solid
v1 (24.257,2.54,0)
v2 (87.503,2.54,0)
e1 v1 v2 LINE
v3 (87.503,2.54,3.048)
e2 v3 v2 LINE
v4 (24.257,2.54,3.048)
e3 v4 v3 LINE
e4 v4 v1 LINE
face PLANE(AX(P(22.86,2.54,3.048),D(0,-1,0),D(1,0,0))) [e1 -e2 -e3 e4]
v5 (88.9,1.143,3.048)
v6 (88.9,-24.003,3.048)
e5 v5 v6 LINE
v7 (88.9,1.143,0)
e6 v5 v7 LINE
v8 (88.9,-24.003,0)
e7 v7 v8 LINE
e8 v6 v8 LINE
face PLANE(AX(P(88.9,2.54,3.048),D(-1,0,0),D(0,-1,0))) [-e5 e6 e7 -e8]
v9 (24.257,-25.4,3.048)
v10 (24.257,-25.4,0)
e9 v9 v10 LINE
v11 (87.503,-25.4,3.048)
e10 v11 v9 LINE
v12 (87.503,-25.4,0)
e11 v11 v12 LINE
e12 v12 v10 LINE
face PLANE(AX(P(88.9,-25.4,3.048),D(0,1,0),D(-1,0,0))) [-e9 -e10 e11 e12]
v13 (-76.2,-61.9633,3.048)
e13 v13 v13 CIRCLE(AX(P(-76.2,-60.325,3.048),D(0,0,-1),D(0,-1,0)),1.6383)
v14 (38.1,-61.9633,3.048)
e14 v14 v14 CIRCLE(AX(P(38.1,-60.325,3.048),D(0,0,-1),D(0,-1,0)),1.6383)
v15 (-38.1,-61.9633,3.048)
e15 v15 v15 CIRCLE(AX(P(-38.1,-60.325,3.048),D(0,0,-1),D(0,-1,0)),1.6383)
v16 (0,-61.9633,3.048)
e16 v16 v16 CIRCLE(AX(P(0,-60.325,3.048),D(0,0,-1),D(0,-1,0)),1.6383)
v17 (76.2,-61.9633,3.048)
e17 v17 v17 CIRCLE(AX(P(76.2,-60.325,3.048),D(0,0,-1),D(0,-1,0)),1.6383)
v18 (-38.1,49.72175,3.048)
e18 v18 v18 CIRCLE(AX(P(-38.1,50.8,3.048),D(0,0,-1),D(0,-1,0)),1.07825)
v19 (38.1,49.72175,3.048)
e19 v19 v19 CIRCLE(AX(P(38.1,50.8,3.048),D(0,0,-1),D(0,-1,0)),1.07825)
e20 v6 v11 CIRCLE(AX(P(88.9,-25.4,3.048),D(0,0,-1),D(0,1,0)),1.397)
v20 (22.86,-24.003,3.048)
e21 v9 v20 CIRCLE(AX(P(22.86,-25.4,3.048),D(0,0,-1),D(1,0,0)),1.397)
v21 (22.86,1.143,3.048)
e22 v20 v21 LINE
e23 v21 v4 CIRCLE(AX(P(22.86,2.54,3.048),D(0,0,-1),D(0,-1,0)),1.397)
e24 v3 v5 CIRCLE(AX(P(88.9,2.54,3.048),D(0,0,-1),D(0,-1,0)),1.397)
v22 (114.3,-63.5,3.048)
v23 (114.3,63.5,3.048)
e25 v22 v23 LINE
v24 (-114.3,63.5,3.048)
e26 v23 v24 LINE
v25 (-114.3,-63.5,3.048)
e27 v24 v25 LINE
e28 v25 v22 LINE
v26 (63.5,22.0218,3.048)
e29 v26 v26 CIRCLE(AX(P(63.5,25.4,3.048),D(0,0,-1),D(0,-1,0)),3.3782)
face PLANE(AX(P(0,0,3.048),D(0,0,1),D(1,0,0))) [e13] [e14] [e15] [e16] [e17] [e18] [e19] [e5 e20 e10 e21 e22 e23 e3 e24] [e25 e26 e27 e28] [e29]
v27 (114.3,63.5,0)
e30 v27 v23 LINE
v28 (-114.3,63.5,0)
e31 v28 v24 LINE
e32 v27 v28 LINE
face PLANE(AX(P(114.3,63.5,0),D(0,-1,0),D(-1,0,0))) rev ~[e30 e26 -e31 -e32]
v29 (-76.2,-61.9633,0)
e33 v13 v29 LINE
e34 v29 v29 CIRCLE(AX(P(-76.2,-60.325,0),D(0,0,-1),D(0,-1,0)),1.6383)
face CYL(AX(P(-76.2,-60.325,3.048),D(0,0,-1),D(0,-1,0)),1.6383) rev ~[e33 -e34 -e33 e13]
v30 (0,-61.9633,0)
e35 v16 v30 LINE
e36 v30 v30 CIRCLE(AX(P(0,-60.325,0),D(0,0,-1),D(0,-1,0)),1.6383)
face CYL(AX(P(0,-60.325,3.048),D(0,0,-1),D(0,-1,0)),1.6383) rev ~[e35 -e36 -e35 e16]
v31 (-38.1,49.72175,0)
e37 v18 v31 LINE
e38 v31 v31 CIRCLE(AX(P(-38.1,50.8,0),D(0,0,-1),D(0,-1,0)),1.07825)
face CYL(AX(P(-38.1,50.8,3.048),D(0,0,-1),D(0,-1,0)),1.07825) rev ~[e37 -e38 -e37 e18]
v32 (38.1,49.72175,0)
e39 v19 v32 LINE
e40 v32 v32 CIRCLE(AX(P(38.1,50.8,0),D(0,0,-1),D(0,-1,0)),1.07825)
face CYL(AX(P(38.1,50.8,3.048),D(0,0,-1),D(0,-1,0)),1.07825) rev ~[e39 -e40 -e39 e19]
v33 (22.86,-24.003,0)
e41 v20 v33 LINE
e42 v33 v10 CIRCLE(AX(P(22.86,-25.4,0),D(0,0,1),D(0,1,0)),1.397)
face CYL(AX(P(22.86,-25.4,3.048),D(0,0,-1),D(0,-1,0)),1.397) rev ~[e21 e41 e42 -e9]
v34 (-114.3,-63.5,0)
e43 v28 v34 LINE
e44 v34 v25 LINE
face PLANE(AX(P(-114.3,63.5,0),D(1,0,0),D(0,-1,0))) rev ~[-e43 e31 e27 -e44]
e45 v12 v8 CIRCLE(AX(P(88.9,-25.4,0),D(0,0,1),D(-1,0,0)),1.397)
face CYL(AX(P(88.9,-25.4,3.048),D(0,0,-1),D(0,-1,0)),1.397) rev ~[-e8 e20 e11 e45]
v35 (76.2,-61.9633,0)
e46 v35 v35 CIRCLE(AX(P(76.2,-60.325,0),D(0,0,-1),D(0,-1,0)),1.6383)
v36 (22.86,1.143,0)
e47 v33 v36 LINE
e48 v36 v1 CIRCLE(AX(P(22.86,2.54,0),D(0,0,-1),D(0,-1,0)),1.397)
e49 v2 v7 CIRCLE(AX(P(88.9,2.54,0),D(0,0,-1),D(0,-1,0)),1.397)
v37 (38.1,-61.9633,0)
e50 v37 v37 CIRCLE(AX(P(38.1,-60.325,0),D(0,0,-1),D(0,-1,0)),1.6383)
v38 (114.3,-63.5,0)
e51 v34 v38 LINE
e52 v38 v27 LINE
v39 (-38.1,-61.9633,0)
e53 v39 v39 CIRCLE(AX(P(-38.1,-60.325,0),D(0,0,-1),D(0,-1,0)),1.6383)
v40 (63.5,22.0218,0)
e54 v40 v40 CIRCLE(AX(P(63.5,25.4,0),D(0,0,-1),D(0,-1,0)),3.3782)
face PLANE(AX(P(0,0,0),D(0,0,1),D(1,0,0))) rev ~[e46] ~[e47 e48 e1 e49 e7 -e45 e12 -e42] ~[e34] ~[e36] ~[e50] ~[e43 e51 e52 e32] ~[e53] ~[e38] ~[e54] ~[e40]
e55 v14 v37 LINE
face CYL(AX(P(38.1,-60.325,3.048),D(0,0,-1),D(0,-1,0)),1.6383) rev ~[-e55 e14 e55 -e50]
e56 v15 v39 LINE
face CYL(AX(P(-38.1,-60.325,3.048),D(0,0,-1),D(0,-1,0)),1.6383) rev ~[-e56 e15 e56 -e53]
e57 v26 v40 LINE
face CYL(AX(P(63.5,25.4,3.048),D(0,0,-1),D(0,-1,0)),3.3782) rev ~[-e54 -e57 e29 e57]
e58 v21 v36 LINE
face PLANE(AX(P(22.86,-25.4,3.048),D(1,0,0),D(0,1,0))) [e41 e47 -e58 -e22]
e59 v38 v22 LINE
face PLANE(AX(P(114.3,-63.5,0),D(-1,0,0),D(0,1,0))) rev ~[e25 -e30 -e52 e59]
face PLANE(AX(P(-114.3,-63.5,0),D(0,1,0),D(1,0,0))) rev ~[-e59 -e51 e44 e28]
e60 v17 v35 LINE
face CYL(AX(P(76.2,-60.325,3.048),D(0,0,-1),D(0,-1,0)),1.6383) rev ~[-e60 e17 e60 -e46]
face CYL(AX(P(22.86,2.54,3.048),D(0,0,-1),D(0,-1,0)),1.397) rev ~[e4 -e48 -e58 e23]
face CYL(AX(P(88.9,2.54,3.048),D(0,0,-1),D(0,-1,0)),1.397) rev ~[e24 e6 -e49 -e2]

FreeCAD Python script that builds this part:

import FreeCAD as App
import Part
import Sketcher

V = App.Vector
Q = App.Units.Quantity

doc = App.newDocument("Part")
body = doc.addObject("PartDesign::Body", "Body")

sketch1 = body.newObject("Sketcher::SketchObject", "Sketch")
sketch1.AttachmentSupport = (doc.getObject("XY_Plane"), [""])
sketch1.MapMode = "FlatFace"
sketch1.addGeometry([
    Part.LineSegment(V(114.3, -63.5, 0), V(114.3, 63.5, 0)),
    Part.LineSegment(V(114.3, 63.5, 0), V(-114.3, 63.5, 0)),
    Part.LineSegment(V(-114.3, 63.5, 0), V(-114.3, -63.5, 0)),
    Part.LineSegment(V(-114.3, -63.5, 0), V(114.3, -63.5, 0)),
], False)
sketch1.addConstraint([
    Sketcher.Constraint("Coincident", 0, 2, 1, 1),
    Sketcher.Constraint("Coincident", 1, 2, 2, 1),
    Sketcher.Constraint("Coincident", 2, 2, 3, 1),
    Sketcher.Constraint("Coincident", 3, 2, 0, 1),
    Sketcher.Constraint("Vertical", 0),
    Sketcher.Constraint("Horizontal", 1),
    Sketcher.Constraint("Vertical", 2),
    Sketcher.Constraint("Horizontal", 3),
    Sketcher.Constraint("Symmetric", 0, 2, 2, 2, -1, 1),
    Sketcher.Constraint("DistanceX", 1, 2, 1, 1, Q("9 in")),
    Sketcher.Constraint("DistanceY", 0, 1, 0, 2, Q("5 in")),
])
pad1 = body.newObject("PartDesign::Pad", "Pad")
pad1.Profile = sketch1
pad1.Length = Q("0.12 in")

sketch2 = body.newObject("Sketcher::SketchObject", "Sketch001")
sketch2.AttachmentSupport = (doc.getObject("XY_Plane"), [""])
sketch2.MapMode = "FlatFace"
sketch2.AttachmentOffset = App.Placement(V(0, 0, 0.12 * 25.4), App.Rotation())
sketch2.addGeometry([
    Part.Circle(V(-76.2, -60.325, 0), V(0, 0, 1), 1.6383),
    Part.Circle(V(-38.1, -60.325, 0), V(0, 0, 1), 1.6383),
    Part.Circle(V(0, -60.325, 0), V(0, 0, 1), 1.6383),
    Part.Circle(V(38.1, -60.325, 0), V(0, 0, 1), 1.6383),
    Part.Circle(V(76.2, -60.325, 0), V(0, 0, 1), 1.6383),
], False)
sketch2.addConstraint([
    Sketcher.Constraint("Equal", 0, 1),
    Sketcher.Constraint("Equal", 1, 2),
    Sketcher.Constraint("Equal", 2, 3),
    Sketcher.Constraint("Equal", 3, 4),
    Sketcher.Constraint("Symmetric", 1, 3, 3, 3, -2),
    Sketcher.Constraint("Symmetric", 0, 3, 4, 3, -2),
    Sketcher.Constraint("PointOnObject", 2, 3, -2),
    Sketcher.Constraint("Horizontal", 0, 3, 1, 3),
    Sketcher.Constraint("Horizontal", 1, 3, 2, 3),
    Sketcher.Constraint("Diameter", 0, Q("0.129 in")),
    Sketcher.Constraint("DistanceX", 0, 3, -1, 1, Q("3 in")),
    Sketcher.Constraint("DistanceX", 1, 3, 3, 3, Q("3 in")),
    Sketcher.Constraint("DistanceY", 0, 3, -1, 1, Q("2.375 in")),
])
doc.recompute()
hole = body.newObject("PartDesign::Hole", "Hole")
hole.Profile = sketch2
hole.ThreadType = "None"
hole.Diameter = Q("0.129 in")
hole.DepthType = "Dimension"
hole.Depth = Q("0.12 in")
hole.DrillPoint = "Flat"

sketch3 = body.newObject("Sketcher::SketchObject", "Sketch002")
sketch3.AttachmentSupport = (doc.getObject("XY_Plane"), [""])
sketch3.MapMode = "FlatFace"
sketch3.AttachmentOffset = App.Placement(V(0, 0, 0.12 * 25.4), App.Rotation())
sketch3.addGeometry([
    Part.LineSegment(V(22.86, -25.4, 0), V(88.9, -25.4, 0)),
    Part.LineSegment(V(88.9, -25.4, 0), V(88.9, 2.54, 0)),
    Part.LineSegment(V(88.9, 2.54, 0), V(22.86, 2.54, 0)),
    Part.LineSegment(V(22.86, 2.54, 0), V(22.86, -25.4, 0)),
], False)
sketch3.addConstraint([
    Sketcher.Constraint("Coincident", 0, 2, 1, 1),
    Sketcher.Constraint("Coincident", 1, 2, 2, 1),
    Sketcher.Constraint("Coincident", 2, 2, 3, 1),
    Sketcher.Constraint("Coincident", 3, 2, 0, 1),
    Sketcher.Constraint("Horizontal", 0),
    Sketcher.Constraint("Vertical", 1),
    Sketcher.Constraint("Horizontal", 2),
    Sketcher.Constraint("Vertical", 3),
    Sketcher.Constraint("DistanceX", 0, 1, 0, 2, Q("2.6 in")),
    Sketcher.Constraint("DistanceY", 1, 1, 1, 2, Q("1.1 in")),
    Sketcher.Constraint("DistanceY", 0, 2, -1, 1, Q("1 in")),
    Sketcher.Constraint("DistanceX", -1, 1, 0, 2, Q("3.5 in")),
])
pocket1 = body.newObject("PartDesign::Pocket", "Pocket")
pocket1.Profile = sketch3
pocket1.Length = Q("0.12 in")

sketch4 = body.newObject("Sketcher::SketchObject", "Sketch003")
sketch4.AttachmentSupport = (doc.getObject("XY_Plane"), [""])
sketch4.MapMode = "FlatFace"
sketch4.AttachmentOffset = App.Placement(V(0, 0, 0.12 * 25.4), App.Rotation())
sketch4.addGeometry([
    Part.Circle(V(-38.1, 50.8, 0), V(0, 0, 1), 1.07825),
    Part.Circle(V(38.1, 50.8, 0), V(0, 0, 1), 1.07825),
], False)
sketch4.addConstraint([
    Sketcher.Constraint("Equal", 0, 1),
    Sketcher.Constraint("Symmetric", 0, 3, 1, 3, -2),
    Sketcher.Constraint("DistanceY", -1, 1, 0, 3, Q("2 in")),
    Sketcher.Constraint("DistanceX", 0, 3, 1, 3, Q("3 in")),
    Sketcher.Constraint("Diameter", 0, Q("0.0849 in")),
])
doc.recompute()
hole2 = body.newObject("PartDesign::Hole", "Hole001")
hole2.Profile = sketch4
hole2.ThreadType = "None"
hole2.Diameter = Q("0.0849016 in")
hole2.DepthType = "ThroughAll"

sketch5 = body.newObject("Sketcher::SketchObject", "Sketch004")
sketch5.AttachmentSupport = (doc.getObject("XY_Plane"), [""])
sketch5.MapMode = "FlatFace"
sketch5.AttachmentOffset = App.Placement(V(0, 0, 0.12 * 25.4), App.Rotation())
sketch5.addGeometry([
    Part.Circle(V(22.86, 2.54, 0), V(0, 0, 1), 1.397),
    Part.Circle(V(88.9, 2.54, 0), V(0, 0, 1), 1.397),
    Part.Circle(V(88.9, -25.4, 0), V(0, 0, 1), 1.397),
    Part.Circle(V(22.86, -25.4, 0), V(0, 0, 1), 1.397),
], False)
sketch5.addConstraint([
    Sketcher.Constraint("Equal", 0, 1),
    Sketcher.Constraint("Equal", 1, 2),
    Sketcher.Constraint("Equal", 2, 3),
    Sketcher.Constraint("Horizontal", 0, 3, 1, 3),
    Sketcher.Constraint("Horizontal", 2, 3, 3, 3),
    Sketcher.Constraint("Vertical", 1, 3, 2, 3),
    Sketcher.Constraint("Vertical", 0, 3, 3, 3),
    Sketcher.Constraint("Diameter", 0, Q("0.11 in")),
    Sketcher.Constraint("DistanceY", 2, 3, -1, 1, Q("1 in")),
    Sketcher.Constraint("DistanceX", -1, 1, 0, 3, Q("0.9 in")),
    Sketcher.Constraint("DistanceY", -1, 1, 0, 3, Q("0.1 in")),
    Sketcher.Constraint("DistanceX", -1, 1, 1, 3, Q("3.5 in")),
])
doc.recompute()
hole3 = body.newObject("PartDesign::Hole", "Hole002")
hole3.Profile = sketch5
hole3.ThreadType = "None"
hole3.Diameter = Q("0.11 in")
hole3.DepthType = "Dimension"
hole3.Depth = Q("0.12 in")
hole3.DrillPoint = "Flat"

sketch6 = body.newObject("Sketcher::SketchObject", "Sketch005")
sketch6.AttachmentSupport = (doc.getObject("XY_Plane"), [""])
sketch6.MapMode = "FlatFace"
sketch6.AttachmentOffset = App.Placement(V(0, 0, 0.12 * 25.4), App.Rotation())
sketch6.addGeometry(Part.Circle(V(63.5, 25.4, 0), V(0, 0, 1), 3.3782), False)
sketch6.addConstraint([
    Sketcher.Constraint("Diameter", 0, Q("0.266 in")),
    Sketcher.Constraint("DistanceY", -1, 1, 0, 3, Q("1 in")),
    Sketcher.Constraint("DistanceX", -1, 1, 0, 3, Q("2.5 in")),
])
doc.recompute()
hole4 = body.newObject("PartDesign::Hole", "Hole003")
hole4.Profile = sketch6
hole4.ThreadType = "None"
hole4.Diameter = Q("0.266 in")
hole4.DepthType = "Dimension"
hole4.Depth = Q("0.12 in")
hole4.DrillPoint = "Flat"

doc.recompute()
